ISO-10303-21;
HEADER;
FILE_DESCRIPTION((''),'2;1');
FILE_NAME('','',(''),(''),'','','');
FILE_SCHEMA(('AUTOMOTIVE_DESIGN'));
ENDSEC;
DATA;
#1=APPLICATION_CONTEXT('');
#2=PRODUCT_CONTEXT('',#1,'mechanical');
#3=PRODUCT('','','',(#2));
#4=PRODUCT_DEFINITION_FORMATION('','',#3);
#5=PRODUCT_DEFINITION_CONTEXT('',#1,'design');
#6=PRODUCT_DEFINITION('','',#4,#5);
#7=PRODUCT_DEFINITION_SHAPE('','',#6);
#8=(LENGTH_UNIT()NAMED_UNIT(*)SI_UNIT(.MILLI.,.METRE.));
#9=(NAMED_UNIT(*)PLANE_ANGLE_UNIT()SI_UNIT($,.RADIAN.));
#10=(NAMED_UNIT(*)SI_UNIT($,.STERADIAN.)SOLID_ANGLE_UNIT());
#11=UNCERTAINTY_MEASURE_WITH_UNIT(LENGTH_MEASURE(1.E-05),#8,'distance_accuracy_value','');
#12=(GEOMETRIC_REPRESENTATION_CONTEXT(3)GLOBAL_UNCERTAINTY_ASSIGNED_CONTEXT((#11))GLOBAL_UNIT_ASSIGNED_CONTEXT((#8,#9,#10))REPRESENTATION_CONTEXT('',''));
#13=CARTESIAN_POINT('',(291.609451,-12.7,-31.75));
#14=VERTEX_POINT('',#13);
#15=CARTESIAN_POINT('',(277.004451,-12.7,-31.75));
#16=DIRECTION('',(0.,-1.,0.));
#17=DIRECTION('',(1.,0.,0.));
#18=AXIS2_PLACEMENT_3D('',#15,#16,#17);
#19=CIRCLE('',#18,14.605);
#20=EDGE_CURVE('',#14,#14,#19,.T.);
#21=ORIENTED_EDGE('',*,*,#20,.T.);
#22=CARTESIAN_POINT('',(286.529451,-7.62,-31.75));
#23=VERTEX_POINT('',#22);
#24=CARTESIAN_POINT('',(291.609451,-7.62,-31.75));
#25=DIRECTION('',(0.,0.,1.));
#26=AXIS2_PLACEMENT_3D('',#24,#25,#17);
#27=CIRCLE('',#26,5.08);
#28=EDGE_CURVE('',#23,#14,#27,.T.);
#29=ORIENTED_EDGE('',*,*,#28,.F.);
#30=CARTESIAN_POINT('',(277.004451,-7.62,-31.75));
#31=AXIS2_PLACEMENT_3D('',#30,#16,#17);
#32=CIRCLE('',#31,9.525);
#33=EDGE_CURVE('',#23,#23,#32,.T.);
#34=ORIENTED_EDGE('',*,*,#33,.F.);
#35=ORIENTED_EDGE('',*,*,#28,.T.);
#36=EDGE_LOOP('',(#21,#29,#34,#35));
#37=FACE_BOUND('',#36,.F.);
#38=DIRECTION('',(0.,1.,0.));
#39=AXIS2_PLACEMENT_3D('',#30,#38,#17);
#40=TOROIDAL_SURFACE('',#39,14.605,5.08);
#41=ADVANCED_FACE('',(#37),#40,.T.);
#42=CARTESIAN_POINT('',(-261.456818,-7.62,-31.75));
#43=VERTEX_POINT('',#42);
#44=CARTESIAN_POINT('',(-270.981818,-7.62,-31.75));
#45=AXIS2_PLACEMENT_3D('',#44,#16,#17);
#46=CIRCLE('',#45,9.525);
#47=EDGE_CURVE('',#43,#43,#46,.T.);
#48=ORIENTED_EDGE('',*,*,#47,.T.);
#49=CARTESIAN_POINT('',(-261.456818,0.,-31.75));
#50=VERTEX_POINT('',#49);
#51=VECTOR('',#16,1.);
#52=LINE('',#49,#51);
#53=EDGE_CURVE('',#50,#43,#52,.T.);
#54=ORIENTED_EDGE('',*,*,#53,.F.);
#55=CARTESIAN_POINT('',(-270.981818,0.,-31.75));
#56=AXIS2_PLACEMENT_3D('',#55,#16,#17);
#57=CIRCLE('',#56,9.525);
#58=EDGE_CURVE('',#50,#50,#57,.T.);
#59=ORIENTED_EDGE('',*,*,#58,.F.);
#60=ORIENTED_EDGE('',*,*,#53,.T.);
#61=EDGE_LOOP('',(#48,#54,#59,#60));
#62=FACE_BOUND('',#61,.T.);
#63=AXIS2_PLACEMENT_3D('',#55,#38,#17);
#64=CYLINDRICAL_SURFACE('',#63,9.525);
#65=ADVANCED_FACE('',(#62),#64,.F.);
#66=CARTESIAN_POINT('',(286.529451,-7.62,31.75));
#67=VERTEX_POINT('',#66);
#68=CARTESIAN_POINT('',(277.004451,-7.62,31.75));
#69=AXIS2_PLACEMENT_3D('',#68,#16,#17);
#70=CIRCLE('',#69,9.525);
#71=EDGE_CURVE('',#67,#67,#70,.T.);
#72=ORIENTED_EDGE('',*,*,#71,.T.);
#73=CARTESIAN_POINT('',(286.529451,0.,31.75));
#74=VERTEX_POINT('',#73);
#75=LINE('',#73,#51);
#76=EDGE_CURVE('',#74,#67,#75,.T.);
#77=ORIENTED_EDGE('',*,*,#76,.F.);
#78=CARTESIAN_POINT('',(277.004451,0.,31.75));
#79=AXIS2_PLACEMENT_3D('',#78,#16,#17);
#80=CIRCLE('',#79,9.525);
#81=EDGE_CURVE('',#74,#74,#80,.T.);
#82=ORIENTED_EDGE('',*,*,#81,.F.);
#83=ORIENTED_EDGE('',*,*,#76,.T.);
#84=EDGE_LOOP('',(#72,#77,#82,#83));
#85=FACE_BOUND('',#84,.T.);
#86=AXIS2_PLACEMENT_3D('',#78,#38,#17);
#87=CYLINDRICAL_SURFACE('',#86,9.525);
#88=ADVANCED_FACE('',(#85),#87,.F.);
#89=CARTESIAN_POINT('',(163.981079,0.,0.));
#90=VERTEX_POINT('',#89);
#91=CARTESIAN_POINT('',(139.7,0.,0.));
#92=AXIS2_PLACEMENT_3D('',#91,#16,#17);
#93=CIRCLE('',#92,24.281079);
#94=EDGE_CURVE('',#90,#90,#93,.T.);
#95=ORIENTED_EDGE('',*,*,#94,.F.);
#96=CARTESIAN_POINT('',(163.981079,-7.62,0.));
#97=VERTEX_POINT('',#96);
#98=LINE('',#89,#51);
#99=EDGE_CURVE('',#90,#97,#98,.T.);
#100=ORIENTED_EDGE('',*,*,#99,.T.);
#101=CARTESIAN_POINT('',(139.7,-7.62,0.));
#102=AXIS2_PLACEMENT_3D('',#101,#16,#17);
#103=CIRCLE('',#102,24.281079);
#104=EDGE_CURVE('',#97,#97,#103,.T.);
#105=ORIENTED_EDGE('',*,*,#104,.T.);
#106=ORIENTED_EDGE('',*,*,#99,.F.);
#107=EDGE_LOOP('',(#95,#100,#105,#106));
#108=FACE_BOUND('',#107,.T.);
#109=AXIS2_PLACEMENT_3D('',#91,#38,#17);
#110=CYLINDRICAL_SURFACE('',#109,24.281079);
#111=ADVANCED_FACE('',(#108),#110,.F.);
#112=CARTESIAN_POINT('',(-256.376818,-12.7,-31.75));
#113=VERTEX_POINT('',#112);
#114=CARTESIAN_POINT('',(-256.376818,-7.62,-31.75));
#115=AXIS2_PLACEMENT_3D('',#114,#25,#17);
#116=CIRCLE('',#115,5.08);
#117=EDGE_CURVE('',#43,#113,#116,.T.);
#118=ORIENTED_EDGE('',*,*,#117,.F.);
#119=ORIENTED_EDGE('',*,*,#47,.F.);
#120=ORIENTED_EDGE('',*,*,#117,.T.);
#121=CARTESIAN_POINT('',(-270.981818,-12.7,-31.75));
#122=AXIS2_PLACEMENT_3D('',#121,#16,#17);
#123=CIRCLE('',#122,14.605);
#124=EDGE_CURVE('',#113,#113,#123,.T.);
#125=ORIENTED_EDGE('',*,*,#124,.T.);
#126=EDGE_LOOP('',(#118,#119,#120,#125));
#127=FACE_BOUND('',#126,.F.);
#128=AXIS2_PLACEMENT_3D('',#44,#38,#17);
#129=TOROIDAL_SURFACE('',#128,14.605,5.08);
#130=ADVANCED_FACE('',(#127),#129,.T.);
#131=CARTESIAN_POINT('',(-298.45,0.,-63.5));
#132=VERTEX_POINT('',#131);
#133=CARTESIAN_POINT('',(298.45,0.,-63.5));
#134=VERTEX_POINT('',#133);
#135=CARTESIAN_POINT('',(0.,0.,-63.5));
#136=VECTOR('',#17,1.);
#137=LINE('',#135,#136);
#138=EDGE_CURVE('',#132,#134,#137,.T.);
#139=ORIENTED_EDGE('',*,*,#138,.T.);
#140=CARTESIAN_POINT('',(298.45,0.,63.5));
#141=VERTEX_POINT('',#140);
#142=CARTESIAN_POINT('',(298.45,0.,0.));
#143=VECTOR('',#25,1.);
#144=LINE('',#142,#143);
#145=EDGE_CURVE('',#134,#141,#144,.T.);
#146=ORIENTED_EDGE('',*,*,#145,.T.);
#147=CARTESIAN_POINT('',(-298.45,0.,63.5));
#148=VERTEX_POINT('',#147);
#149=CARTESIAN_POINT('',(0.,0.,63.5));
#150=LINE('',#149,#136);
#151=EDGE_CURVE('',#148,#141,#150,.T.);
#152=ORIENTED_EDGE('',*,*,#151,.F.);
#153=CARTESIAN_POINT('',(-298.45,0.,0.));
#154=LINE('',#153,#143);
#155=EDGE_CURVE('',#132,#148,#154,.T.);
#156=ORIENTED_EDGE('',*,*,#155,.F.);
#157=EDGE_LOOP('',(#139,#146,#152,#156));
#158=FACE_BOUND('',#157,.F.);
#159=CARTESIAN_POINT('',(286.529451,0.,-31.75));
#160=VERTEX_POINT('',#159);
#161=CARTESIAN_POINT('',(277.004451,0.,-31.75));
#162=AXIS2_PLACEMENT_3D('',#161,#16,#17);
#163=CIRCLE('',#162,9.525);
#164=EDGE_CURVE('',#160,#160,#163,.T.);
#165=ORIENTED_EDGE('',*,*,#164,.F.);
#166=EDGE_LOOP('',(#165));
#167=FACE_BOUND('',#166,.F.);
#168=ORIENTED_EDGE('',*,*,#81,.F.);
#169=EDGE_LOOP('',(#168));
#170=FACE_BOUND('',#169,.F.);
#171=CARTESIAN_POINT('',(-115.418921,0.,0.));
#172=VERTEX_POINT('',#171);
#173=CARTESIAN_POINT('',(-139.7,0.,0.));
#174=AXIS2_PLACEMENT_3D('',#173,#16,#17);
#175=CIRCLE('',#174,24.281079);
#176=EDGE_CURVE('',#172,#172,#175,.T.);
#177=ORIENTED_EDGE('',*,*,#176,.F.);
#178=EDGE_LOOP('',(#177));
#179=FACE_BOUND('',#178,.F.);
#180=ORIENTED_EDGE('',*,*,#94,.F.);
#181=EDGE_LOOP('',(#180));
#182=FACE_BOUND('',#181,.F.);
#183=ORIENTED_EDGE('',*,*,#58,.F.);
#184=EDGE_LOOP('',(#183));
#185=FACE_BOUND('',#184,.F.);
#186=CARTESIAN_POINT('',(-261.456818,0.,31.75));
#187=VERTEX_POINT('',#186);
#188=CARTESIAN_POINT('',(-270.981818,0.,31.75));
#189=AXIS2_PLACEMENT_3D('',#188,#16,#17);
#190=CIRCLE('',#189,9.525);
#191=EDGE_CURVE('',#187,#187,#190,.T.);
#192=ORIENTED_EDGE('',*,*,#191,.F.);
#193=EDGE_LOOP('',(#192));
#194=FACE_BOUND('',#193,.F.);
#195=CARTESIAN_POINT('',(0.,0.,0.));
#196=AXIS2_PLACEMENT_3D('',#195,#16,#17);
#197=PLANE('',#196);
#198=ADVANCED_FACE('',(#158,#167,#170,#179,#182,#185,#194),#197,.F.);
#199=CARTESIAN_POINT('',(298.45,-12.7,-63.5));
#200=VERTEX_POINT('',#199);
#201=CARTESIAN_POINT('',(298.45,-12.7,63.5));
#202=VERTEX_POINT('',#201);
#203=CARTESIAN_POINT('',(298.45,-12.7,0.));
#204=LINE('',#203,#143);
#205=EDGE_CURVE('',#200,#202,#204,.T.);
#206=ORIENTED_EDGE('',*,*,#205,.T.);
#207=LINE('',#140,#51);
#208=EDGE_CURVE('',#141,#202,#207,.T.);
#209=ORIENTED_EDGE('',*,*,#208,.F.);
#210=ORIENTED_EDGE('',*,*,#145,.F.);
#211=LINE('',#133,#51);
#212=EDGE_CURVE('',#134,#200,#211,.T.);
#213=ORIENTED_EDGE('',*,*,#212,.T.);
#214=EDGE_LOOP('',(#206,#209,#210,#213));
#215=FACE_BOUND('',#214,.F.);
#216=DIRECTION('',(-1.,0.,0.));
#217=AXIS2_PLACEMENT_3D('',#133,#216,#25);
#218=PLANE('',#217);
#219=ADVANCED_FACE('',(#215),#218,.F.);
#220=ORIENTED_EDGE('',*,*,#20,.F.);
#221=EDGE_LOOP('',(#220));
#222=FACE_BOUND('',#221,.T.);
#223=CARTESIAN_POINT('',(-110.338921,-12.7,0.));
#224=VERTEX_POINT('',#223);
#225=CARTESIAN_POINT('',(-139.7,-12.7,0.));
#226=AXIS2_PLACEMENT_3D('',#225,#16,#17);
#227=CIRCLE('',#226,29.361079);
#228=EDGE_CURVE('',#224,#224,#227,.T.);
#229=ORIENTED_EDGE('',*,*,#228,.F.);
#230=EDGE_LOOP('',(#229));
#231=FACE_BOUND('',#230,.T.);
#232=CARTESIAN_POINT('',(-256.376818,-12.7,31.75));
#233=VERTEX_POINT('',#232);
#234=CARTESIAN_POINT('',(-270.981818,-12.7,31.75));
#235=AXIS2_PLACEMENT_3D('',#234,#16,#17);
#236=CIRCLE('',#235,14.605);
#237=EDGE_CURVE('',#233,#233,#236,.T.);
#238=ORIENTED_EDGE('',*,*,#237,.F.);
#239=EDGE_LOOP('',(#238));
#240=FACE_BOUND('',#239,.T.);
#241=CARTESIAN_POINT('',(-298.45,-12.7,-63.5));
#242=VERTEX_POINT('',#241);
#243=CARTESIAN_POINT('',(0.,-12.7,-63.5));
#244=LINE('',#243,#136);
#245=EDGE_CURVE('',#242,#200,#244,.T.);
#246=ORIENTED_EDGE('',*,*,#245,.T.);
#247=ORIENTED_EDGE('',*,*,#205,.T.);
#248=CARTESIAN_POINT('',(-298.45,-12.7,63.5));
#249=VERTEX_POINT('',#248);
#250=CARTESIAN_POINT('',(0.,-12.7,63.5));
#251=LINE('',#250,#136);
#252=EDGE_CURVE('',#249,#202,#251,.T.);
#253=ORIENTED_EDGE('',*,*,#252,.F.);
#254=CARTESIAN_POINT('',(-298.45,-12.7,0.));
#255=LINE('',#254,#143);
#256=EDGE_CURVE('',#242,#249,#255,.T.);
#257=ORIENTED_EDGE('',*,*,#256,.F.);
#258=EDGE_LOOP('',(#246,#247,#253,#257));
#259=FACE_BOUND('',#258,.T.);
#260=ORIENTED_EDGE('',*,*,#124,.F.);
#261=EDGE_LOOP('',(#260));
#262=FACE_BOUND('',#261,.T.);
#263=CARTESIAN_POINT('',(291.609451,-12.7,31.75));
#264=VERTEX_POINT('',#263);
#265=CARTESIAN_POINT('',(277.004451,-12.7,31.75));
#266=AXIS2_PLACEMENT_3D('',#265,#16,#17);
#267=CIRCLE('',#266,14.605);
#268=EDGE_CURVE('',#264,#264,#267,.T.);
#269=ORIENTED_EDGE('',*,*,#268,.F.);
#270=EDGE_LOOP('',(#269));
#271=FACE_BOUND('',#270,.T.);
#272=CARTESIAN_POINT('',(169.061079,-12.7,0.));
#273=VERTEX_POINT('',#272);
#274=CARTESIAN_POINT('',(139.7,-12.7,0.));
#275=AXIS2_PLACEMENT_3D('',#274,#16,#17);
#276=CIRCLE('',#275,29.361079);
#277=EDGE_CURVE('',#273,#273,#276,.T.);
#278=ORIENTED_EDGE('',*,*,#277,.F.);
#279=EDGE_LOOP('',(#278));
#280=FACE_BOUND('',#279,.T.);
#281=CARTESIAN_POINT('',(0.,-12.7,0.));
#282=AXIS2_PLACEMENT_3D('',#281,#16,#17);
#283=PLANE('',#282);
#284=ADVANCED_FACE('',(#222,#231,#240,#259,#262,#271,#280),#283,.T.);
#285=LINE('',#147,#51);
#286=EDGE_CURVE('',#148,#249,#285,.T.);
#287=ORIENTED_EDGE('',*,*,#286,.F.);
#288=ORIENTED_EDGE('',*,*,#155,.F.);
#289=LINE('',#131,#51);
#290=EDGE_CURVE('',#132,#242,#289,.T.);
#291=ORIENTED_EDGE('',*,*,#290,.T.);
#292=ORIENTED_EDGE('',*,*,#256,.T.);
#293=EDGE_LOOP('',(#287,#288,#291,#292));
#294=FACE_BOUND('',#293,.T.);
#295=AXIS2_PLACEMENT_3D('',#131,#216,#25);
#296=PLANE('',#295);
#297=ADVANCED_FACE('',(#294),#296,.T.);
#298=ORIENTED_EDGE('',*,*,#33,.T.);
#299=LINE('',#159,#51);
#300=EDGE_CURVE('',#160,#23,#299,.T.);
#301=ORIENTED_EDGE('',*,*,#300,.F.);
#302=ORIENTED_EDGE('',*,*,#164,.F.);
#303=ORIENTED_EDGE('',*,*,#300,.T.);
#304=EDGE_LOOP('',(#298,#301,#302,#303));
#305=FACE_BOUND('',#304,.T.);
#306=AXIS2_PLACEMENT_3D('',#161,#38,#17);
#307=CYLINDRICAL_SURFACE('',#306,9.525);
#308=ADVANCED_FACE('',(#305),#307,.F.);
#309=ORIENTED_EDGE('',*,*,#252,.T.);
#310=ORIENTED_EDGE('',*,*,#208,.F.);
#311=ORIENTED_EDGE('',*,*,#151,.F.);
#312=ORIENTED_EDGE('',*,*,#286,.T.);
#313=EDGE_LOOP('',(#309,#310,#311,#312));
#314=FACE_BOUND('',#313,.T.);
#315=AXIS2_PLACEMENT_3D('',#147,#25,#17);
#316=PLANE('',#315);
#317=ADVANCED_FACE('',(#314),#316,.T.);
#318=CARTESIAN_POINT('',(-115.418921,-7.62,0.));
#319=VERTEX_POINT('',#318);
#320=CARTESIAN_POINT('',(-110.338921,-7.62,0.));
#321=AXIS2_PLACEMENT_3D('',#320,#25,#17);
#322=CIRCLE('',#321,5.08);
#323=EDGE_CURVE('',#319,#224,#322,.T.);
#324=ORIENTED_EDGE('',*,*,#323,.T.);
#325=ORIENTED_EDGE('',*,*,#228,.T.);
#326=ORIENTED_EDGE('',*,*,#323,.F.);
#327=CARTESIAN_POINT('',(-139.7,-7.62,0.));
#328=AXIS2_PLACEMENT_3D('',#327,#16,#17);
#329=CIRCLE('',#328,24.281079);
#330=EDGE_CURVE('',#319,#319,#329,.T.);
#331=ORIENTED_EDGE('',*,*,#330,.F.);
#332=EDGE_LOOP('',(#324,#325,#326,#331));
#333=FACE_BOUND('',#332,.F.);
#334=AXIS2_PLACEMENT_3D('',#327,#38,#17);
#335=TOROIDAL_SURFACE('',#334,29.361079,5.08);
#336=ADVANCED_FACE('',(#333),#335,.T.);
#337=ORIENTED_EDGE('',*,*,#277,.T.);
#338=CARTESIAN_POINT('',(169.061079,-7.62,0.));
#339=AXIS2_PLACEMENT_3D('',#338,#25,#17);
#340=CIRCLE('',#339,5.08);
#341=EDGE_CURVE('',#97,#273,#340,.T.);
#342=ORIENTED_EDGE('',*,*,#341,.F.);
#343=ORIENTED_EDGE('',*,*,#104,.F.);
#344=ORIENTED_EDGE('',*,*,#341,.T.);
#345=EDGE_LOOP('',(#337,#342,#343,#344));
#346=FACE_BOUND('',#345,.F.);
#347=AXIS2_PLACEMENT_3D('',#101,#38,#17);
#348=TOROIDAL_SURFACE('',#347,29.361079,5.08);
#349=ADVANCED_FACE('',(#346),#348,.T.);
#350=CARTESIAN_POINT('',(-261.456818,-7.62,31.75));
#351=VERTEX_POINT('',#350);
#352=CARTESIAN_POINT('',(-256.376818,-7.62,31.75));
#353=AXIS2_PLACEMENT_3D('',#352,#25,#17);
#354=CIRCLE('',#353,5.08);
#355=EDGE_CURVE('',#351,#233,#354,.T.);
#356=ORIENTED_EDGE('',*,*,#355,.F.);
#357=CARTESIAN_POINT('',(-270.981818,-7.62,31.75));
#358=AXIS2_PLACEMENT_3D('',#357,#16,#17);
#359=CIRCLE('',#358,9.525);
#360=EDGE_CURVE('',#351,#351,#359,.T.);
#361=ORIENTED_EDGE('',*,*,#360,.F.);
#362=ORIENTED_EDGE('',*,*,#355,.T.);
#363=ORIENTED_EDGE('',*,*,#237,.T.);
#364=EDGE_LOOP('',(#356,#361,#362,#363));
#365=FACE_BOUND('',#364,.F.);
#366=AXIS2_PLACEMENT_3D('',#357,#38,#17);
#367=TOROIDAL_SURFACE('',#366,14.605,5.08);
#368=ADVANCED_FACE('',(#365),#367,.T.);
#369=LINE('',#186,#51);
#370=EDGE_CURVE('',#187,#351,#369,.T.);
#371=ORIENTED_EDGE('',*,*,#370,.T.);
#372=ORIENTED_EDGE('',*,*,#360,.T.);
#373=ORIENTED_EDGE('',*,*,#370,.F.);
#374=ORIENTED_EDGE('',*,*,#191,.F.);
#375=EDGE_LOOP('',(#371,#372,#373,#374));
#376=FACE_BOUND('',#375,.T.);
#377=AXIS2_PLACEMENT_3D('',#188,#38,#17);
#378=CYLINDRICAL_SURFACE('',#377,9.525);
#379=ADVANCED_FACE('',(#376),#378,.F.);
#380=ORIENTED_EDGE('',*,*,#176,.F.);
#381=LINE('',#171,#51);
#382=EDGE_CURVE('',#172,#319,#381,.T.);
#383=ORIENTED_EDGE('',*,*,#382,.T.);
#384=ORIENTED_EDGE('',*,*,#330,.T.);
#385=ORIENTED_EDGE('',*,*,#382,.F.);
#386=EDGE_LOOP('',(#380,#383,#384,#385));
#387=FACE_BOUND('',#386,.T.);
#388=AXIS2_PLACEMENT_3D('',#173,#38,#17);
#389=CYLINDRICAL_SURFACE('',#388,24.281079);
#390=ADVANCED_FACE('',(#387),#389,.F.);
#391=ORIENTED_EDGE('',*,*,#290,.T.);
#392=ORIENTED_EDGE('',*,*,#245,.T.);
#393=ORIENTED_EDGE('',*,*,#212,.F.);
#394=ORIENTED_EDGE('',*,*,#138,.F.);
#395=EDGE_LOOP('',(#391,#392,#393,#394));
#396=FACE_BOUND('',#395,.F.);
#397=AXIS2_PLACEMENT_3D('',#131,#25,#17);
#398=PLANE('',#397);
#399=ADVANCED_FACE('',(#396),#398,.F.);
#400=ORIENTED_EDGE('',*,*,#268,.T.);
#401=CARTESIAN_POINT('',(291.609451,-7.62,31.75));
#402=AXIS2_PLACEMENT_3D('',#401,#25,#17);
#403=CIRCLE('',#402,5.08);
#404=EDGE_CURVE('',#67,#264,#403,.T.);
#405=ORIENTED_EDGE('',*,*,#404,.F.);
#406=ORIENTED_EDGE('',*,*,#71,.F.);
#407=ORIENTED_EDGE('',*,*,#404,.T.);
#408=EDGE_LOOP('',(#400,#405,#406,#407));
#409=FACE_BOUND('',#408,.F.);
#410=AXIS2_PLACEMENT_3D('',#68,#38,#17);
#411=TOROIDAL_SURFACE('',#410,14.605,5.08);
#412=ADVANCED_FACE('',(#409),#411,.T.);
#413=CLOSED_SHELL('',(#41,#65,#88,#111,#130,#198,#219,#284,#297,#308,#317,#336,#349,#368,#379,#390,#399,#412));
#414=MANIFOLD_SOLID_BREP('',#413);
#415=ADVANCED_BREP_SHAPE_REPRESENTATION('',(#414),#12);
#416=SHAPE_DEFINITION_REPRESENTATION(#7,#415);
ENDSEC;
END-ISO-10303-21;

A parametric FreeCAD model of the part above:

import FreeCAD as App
import Part
import Sketcher
Q = App.Units.Quantity


def edges_at(feature, points):
    """Names of the edges that pass closest to the given points."""
    edges = feature.Shape.Edges
    near = lambda p: min(range(len(edges)), key=lambda i: edges[i].distToShape(Part.Vertex(*p))[0])
    return sorted({f"Edge{near(p) + 1}" for p in points})


def add_polygon(sketch, points):
    """Adds a closed chain of lines whose ends are joined by coincident constraints."""
    first, n = sketch.GeometryCount, len(points)
    for a, b in zip(points, points[1:] + points[:1]):
        sketch.addGeometry(Part.LineSegment(App.Vector(*a, 0), App.Vector(*b, 0)), False)
    for i in range(n):
        sketch.addConstraint(Sketcher.Constraint("Coincident", first + i, 2, first + (i + 1) % n, 1))

doc = App.newDocument("Part")
body = doc.addObject("PartDesign::Body", "Body")

# Sketch on XZ plane
sketch1 = body.newObject("Sketcher::SketchObject", "Sketch")
sketch1.AttachmentSupport = (doc.getObject("XZ_Plane"), [""])
sketch1.MapMode = "FlatFace"
add_polygon(sketch1, [(-298.45, 63.5), (-298.45, -63.5), (298.45, -63.5), (298.45, 63.5)])  # lines 0-3
sketch1.addGeometry(Part.Circle(App.Vector(-270.981818, -31.75, 0), App.Vector(0, 0, 1), 9.525), False)  # 4
sketch1.addGeometry(Part.Circle(App.Vector(277.004451, -31.75, 0), App.Vector(0, 0, 1), 9.525), False)  # 5
sketch1.addGeometry(Part.Circle(App.Vector(-139.7, 0, 0), App.Vector(0, 0, 1), 24.281079), False)  # 6
sketch1.addGeometry(Part.Circle(App.Vector(-270.981818, 31.75, 0), App.Vector(0, 0, 1), 9.525), False)  # 7
sketch1.addGeometry(Part.Circle(App.Vector(139.7, 0, 0), App.Vector(0, 0, 1), 24.281079), False)  # 8
sketch1.addGeometry(Part.Circle(App.Vector(277.004451, 31.75, 0), App.Vector(0, 0, 1), 9.525), False)  # 9
sketch1.addConstraint(Sketcher.Constraint("Vertical", 0))
sketch1.addConstraint(Sketcher.Constraint("Horizontal", 1))
sketch1.addConstraint(Sketcher.Constraint("Vertical", 2))
sketch1.addConstraint(Sketcher.Constraint("Horizontal", 3))
sketch1.addConstraint(Sketcher.Constraint("Equal", 4, 5))
sketch1.addConstraint(Sketcher.Constraint("Equal", 5, 7))
sketch1.addConstraint(Sketcher.Constraint("Equal", 6, 8))
sketch1.addConstraint(Sketcher.Constraint("Equal", 7, 9))
sketch1.addConstraint(Sketcher.Constraint("Symmetric", 6, 3, 8, 3, -1, 1))
sketch1.addConstraint(Sketcher.Constraint("Symmetric", 0, 2, 2, 2, -1, 1))
sketch1.addConstraint(Sketcher.Constraint("Symmetric", 4, 3, 7, 3, -1))
sketch1.addConstraint(Sketcher.Constraint("Symmetric", 5, 3, 9, 3, -1))
sketch1.addConstraint(Sketcher.Constraint("PointOnObject", 6, 3, -1))
sketch1.addConstraint(Sketcher.Constraint("Horizontal", 4, 3, 5, 3))
sketch1.addConstraint(Sketcher.Constraint("Diameter", 4, Q("0.75 in")))
sketch1.addConstraint(Sketcher.Constraint("DistanceY", 0, 2, 0, 1, Q("5 in")))
sketch1.addConstraint(Sketcher.Constraint("DistanceX", 1, 1, 1, 2, Q("23.5 in")))
sketch1.addConstraint(Sketcher.Constraint("DistanceX", 6, 3, 8, 3, Q("11 in")))
sketch1.addConstraint(Sketcher.Constraint("DistanceY", 4, 3, 7, 3, Q("2.5 in")))
sketch1.addConstraint(Sketcher.Constraint("Diameter", 6, Q("48.562158 mm")))
sketch1.addConstraint(Sketcher.Constraint("DistanceX", -1, 1, 5, 3, Q("277.004451 mm")))
sketch1.addConstraint(Sketcher.Constraint("DistanceX", 4, 3, 5, 3, Q("547.986269 mm")))
pad1 = body.newObject("PartDesign::Pad", "Pad")
pad1.Profile = sketch1
pad1.Length = Q("0.5 in")
doc.recompute()

fillet = body.newObject("PartDesign::Fillet", "Fillet")
fillet.Base = (pad1, edges_at(pad1, [
    (-163.981, -12.7, 0),
    (-280.507, -12.7, 31.75),
    (-280.507, -12.7, -31.75),
    (115.419, -12.7, 0),
    (267.479, -12.7, -31.75),
    (267.479, -12.7, 31.75),
]))
fillet.Radius = Q("0.2 in")

doc.recompute()
